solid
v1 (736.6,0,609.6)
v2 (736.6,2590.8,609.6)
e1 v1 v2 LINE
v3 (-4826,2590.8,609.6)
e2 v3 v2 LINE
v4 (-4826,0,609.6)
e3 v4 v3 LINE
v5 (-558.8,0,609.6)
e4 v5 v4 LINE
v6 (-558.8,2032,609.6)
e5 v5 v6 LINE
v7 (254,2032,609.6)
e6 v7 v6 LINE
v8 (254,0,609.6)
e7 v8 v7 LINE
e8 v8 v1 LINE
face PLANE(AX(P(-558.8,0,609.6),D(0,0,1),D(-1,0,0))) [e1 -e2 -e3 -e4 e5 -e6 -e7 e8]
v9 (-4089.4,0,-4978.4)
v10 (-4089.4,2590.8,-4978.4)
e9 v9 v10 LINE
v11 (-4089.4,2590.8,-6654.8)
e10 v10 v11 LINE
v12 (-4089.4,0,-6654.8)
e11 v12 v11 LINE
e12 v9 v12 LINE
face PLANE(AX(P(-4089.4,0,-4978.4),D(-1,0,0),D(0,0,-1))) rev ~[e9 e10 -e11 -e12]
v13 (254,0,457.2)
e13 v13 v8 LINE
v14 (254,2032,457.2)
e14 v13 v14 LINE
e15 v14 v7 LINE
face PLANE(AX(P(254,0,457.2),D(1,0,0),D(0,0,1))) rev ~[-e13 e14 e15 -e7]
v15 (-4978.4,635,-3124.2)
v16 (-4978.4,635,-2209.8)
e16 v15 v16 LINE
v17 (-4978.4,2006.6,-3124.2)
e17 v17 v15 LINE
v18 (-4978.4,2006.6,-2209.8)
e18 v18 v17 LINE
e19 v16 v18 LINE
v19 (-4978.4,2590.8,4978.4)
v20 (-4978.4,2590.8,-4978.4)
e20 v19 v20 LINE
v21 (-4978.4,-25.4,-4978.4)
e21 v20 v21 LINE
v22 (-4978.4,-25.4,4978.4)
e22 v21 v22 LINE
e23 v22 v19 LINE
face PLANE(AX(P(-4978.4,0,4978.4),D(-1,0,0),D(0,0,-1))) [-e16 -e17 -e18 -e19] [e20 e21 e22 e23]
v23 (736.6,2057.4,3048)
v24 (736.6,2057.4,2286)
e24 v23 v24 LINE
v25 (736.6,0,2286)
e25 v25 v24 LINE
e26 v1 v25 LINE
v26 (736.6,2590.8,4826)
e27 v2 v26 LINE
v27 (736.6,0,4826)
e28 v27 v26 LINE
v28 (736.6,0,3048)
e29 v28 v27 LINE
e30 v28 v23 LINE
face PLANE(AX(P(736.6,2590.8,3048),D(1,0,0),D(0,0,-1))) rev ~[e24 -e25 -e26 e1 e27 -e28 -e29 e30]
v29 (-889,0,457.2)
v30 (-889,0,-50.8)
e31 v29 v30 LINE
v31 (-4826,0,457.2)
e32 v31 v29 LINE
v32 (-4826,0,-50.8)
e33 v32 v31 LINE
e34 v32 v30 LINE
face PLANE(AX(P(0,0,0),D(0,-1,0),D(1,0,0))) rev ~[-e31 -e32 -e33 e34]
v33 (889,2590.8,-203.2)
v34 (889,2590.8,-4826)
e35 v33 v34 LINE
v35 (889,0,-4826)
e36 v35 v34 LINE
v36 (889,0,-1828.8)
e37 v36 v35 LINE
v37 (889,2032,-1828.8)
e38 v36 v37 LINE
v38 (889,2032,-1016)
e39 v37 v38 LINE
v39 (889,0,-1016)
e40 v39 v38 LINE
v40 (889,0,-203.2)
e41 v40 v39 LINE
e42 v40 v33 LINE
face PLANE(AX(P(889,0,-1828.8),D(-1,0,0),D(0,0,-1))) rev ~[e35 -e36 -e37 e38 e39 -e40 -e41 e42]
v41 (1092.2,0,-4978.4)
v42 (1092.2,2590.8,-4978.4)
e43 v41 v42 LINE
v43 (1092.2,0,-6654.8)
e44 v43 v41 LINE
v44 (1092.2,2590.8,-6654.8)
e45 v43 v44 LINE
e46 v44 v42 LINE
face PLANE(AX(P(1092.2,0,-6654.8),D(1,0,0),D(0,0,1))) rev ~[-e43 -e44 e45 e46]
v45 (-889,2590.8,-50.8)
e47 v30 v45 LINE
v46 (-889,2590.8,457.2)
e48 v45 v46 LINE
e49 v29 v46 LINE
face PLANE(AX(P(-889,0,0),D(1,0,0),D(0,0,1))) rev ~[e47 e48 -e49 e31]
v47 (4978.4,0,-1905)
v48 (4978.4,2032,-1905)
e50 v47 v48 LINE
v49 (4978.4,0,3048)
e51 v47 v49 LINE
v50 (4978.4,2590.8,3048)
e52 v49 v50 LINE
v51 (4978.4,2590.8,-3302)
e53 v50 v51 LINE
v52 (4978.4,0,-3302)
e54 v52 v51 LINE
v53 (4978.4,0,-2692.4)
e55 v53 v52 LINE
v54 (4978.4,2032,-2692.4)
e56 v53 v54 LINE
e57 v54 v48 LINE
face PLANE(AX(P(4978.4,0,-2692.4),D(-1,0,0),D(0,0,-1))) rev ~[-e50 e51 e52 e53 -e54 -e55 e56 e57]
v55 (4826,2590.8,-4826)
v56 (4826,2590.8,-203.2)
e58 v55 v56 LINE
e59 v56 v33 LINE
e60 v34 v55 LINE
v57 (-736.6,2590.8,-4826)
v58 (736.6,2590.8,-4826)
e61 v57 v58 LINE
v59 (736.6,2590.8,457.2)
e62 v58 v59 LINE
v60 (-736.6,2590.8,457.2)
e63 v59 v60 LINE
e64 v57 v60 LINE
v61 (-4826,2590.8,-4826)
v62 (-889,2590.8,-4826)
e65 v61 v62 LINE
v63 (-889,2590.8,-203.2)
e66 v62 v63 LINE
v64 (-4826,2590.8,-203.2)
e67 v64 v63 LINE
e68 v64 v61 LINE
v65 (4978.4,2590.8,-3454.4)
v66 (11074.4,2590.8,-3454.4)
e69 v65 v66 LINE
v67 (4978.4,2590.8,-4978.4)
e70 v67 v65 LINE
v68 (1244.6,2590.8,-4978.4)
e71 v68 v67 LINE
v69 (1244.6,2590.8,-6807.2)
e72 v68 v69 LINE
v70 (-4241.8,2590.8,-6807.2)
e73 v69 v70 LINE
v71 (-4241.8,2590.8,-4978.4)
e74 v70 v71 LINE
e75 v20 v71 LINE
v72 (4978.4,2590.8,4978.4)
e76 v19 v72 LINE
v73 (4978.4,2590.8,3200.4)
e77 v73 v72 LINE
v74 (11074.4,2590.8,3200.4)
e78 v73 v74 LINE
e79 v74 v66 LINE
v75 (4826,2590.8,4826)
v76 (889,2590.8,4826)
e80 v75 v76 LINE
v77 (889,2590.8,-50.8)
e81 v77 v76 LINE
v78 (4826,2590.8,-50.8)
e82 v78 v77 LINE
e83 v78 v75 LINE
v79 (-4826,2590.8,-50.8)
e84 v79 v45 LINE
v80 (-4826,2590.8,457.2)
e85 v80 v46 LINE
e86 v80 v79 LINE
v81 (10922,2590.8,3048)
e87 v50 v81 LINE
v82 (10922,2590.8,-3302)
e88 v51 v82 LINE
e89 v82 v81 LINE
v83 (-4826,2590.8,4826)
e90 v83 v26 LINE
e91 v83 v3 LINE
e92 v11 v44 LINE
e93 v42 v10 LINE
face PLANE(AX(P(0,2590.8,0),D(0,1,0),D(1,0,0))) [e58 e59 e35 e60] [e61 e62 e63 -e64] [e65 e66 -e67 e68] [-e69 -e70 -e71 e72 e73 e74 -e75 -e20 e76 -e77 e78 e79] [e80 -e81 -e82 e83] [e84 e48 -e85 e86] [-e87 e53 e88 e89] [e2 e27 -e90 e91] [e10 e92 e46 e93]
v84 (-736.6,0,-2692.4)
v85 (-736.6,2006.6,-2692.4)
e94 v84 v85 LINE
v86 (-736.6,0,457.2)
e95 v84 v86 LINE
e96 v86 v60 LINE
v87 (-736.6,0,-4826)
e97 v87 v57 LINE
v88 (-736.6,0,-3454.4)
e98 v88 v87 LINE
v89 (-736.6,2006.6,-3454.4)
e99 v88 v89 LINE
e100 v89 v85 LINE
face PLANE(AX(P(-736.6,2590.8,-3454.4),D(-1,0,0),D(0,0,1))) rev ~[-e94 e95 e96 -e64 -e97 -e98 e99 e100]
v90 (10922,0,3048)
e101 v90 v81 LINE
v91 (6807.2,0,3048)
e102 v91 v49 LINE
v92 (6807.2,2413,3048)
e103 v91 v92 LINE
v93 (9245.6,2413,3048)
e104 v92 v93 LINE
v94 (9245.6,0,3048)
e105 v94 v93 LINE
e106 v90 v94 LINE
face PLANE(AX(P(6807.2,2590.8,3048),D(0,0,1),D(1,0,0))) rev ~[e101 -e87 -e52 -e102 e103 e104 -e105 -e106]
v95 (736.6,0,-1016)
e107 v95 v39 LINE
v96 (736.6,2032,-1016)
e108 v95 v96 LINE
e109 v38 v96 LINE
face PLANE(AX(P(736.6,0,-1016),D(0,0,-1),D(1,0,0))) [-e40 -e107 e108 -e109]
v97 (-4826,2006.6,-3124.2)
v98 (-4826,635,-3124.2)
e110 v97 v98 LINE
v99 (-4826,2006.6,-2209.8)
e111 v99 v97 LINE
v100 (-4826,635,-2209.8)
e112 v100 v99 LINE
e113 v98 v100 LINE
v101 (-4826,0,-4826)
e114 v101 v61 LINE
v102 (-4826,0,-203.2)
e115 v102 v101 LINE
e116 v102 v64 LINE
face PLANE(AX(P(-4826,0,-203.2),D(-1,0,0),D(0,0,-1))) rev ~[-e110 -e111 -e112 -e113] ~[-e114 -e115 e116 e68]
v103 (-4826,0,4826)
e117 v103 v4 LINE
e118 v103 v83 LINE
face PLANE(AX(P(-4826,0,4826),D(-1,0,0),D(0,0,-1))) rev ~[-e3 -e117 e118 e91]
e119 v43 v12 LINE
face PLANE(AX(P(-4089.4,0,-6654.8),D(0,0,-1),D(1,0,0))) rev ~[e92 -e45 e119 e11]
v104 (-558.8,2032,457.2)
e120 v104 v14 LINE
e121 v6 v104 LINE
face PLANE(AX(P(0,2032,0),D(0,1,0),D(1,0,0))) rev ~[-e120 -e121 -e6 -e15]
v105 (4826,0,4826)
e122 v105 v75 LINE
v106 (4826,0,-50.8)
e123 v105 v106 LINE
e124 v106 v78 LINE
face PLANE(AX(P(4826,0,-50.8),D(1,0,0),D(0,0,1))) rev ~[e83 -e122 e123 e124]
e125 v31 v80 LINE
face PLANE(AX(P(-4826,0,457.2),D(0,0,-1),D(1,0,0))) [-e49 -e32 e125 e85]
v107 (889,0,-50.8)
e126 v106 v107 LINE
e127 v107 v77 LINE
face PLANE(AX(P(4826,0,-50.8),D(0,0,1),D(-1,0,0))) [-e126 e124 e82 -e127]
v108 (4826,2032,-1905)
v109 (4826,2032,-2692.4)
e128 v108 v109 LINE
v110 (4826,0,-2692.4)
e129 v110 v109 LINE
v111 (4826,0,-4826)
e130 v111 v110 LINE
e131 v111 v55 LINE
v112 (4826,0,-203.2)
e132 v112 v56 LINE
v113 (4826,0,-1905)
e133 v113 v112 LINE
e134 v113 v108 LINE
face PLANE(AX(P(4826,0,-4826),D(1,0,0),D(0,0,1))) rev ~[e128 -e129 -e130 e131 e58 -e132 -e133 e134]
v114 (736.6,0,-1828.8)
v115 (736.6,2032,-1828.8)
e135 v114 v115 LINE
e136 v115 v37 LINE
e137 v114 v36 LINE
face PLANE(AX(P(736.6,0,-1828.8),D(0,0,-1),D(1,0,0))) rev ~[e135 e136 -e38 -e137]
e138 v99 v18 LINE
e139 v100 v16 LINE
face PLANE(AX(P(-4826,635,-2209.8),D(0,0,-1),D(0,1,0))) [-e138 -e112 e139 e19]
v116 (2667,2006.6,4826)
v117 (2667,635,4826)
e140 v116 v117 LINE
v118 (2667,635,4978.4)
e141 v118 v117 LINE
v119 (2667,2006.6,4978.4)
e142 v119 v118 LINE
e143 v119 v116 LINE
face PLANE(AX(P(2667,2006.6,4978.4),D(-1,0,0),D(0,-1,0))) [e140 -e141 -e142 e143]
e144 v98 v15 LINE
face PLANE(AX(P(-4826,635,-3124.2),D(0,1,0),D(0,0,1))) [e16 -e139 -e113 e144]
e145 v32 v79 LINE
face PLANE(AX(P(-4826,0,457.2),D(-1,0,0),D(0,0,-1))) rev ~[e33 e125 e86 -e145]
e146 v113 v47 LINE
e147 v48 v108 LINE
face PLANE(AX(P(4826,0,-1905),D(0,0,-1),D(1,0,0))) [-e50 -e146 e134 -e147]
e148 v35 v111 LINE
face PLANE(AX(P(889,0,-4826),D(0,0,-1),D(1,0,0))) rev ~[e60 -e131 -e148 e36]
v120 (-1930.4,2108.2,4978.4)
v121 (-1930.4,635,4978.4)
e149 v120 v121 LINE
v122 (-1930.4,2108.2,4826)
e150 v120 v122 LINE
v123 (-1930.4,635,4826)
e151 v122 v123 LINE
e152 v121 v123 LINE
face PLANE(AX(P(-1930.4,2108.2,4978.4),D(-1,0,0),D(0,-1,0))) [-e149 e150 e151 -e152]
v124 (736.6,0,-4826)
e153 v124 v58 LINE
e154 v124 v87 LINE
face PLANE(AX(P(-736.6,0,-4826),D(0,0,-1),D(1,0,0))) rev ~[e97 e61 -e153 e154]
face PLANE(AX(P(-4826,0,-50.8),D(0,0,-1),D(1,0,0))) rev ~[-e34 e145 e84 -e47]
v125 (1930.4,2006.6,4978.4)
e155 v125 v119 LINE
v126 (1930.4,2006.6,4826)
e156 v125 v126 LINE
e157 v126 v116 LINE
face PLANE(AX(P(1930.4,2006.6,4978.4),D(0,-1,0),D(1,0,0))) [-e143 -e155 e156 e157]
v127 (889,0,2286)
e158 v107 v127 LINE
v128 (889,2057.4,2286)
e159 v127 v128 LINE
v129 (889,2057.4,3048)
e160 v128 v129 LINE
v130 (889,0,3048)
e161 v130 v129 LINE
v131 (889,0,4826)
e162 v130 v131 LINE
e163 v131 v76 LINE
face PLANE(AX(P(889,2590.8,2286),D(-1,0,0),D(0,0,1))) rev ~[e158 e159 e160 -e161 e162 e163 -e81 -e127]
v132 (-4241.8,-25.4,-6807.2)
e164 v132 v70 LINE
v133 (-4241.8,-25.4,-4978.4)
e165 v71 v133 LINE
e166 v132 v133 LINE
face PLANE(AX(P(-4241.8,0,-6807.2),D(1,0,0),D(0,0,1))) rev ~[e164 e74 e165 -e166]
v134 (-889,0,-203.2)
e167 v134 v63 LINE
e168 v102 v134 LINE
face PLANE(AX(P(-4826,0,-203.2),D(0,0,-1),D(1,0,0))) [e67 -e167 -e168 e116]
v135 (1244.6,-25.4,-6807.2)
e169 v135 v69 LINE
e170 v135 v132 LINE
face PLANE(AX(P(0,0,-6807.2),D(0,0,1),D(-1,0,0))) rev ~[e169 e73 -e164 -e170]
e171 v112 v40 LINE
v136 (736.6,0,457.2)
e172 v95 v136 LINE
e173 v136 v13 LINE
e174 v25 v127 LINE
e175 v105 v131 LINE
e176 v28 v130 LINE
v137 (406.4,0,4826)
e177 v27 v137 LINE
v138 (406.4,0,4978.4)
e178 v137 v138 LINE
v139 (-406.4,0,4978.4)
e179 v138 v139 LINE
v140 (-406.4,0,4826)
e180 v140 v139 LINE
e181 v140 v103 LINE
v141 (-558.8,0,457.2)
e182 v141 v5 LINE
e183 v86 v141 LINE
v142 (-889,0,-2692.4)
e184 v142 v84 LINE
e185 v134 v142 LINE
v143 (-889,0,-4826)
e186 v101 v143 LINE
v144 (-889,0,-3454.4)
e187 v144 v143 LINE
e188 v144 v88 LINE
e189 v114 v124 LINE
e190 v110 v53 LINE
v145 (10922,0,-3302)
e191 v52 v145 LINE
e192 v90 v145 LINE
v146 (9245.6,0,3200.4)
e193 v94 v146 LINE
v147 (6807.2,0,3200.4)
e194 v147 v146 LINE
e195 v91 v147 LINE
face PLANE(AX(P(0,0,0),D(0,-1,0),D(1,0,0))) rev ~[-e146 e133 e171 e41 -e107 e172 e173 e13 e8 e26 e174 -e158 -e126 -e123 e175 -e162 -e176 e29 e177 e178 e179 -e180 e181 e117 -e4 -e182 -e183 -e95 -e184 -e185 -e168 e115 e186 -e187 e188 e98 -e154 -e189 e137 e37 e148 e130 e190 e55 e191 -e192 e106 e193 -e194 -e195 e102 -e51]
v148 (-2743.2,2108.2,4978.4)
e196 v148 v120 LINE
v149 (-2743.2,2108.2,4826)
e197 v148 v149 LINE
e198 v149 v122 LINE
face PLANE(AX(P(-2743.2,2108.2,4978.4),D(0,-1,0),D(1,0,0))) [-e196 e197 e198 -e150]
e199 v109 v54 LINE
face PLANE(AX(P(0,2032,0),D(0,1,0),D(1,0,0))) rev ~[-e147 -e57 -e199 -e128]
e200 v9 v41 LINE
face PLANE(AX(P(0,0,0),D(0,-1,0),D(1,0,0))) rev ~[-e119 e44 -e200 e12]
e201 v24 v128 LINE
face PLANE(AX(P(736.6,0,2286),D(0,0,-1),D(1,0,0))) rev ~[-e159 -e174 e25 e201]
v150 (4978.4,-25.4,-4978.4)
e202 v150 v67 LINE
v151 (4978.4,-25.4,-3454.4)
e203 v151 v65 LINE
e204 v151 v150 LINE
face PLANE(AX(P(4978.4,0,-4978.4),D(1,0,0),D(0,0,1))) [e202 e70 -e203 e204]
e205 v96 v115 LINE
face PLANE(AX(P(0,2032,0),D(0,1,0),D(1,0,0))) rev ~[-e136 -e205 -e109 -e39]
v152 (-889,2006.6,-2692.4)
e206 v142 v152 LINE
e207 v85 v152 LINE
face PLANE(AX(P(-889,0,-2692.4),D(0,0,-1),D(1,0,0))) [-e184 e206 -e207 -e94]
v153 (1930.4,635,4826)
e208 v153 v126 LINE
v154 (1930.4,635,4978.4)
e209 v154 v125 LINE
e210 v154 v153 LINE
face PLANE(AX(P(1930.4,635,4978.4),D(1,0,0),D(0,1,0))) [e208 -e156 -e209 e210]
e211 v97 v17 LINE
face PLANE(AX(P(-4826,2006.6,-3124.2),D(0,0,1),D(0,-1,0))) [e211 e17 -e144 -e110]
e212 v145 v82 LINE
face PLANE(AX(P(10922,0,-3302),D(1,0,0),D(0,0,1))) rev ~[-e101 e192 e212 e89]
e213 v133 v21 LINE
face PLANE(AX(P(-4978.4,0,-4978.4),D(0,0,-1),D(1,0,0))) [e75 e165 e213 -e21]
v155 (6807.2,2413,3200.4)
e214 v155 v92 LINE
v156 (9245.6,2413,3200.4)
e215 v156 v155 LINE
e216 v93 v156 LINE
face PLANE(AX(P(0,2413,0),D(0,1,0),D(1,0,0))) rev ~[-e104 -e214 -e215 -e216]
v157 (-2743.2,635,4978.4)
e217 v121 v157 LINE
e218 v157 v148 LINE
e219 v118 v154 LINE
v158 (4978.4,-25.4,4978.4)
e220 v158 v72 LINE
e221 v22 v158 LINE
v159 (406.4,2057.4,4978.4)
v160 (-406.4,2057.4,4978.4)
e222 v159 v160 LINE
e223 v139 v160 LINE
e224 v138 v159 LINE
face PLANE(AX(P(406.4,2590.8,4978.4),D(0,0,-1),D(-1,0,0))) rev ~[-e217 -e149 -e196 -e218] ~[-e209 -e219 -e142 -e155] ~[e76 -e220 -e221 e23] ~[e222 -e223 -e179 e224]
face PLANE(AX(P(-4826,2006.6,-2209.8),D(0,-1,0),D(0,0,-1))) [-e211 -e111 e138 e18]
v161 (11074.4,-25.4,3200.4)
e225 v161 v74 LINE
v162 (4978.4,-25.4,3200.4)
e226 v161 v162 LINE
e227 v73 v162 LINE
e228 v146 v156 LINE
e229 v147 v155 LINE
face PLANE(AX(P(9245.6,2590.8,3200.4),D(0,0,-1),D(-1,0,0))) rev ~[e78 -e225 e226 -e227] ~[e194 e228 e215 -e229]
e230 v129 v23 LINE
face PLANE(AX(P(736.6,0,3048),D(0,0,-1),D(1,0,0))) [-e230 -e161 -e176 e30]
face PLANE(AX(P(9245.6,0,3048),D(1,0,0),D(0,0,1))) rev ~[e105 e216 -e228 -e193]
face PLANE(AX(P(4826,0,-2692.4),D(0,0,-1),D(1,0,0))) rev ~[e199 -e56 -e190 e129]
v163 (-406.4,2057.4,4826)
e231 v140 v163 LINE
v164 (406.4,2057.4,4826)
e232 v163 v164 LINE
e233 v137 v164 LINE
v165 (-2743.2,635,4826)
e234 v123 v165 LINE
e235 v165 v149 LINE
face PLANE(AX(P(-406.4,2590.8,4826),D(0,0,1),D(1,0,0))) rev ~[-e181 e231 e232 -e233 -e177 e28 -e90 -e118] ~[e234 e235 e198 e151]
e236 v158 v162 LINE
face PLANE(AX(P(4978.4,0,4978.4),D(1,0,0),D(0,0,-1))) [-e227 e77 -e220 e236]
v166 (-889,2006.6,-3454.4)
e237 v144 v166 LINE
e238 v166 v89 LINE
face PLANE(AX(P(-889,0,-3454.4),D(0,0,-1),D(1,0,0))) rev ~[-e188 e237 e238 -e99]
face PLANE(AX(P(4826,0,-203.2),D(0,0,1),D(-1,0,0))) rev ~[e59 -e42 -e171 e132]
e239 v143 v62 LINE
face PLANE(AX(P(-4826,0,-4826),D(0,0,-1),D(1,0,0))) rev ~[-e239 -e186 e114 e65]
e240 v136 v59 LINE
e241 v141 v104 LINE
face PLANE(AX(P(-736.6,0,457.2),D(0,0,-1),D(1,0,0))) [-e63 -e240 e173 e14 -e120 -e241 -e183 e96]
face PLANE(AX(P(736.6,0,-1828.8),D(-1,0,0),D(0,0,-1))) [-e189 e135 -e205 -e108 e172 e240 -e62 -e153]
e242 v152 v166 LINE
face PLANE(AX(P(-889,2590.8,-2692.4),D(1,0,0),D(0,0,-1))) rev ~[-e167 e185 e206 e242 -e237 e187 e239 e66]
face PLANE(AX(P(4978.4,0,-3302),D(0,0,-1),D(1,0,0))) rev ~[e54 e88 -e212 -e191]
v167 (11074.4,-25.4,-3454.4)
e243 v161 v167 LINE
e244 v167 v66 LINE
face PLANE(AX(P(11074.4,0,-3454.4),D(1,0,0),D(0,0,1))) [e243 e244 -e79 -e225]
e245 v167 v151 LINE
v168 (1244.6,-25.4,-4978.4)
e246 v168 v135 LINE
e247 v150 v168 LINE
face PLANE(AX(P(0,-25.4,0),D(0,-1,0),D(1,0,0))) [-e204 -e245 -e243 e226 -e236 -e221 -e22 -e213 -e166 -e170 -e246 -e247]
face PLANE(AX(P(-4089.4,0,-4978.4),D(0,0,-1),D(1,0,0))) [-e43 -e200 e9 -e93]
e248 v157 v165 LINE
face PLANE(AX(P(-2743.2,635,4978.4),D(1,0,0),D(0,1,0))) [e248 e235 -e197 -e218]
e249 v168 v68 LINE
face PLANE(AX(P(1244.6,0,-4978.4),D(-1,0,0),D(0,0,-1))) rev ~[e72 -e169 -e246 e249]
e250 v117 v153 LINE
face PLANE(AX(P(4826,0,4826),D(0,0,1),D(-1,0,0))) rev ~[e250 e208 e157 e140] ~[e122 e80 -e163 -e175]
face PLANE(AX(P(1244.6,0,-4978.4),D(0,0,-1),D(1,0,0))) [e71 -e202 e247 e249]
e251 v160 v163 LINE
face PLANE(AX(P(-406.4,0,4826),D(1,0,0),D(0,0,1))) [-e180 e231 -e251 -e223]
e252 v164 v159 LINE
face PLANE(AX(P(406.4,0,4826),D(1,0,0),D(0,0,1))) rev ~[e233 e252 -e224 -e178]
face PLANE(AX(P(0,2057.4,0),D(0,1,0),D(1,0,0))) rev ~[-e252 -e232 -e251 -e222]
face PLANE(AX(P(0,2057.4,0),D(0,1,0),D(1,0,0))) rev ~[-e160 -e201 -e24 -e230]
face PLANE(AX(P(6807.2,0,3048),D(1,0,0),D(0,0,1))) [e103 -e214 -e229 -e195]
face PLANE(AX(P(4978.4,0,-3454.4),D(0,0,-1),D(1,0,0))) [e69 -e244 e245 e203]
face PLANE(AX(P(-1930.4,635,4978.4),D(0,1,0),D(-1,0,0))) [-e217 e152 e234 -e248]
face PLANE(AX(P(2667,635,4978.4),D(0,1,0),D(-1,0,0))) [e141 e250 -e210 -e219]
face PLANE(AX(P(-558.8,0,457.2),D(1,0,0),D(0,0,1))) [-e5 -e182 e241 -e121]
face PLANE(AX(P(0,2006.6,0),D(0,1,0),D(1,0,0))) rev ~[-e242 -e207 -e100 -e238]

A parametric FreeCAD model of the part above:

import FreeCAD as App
import Part
import Sketcher

V = App.Vector
Q = App.Units.Quantity

doc = App.newDocument("Part")
body = doc.addObject("PartDesign::Body", "Body")
body.AllowCompound = True

# Sketch on XZ plane
sketch1 = body.newObject("Sketcher::SketchObject", "Sketch")
sketch1.AttachmentSupport = (doc.getObject("XZ_Plane"), [""])
sketch1.MapMode = "FlatFace"
sketch1.addGeometry([
    Part.LineSegment(V(-4978, 4978, 0), V(-406, 4978, 0)),  # 0
    Part.LineSegment(V(-406, 4978, 0), V(-406, 4826, 0)),  # 1
    Part.LineSegment(V(-406, 4826, 0), V(-4826, 4826, 0)),  # 2
    Part.LineSegment(V(-4826, 4826, 0), V(-4826, 610, 0)),  # 3
    Part.LineSegment(V(-4826, 610, 0), V(-559, 610, 0)),  # 4
    Part.LineSegment(V(-559, 610, 0), V(-559, 457, 0)),  # 5
    Part.LineSegment(V(-559, 457, 0), V(-737, 457, 0)),  # 6
    Part.LineSegment(V(-737, 457, 0), V(-737, -2692, 0)),  # 7
    Part.LineSegment(V(-737, -2692, 0), V(-889, -2692, 0)),  # 8
    Part.LineSegment(V(-889, -2692, 0), V(-889, -203, 0)),  # 9
    Part.LineSegment(V(-889, -203, 0), V(-4826, -203, 0)),  # 10
    Part.LineSegment(V(-4826, -203, 0), V(-4826, -4826, 0)),  # 11
    Part.LineSegment(V(-4826, -4826, 0), V(-889, -4826, 0)),  # 12
    Part.LineSegment(V(-889, -4826, 0), V(-889, -3454, 0)),  # 13
    Part.LineSegment(V(-889, -3454, 0), V(-737, -3454, 0)),  # 14
    Part.LineSegment(V(-737, -3454, 0), V(-737, -4826, 0)),  # 15
    Part.LineSegment(V(-737, -4826, 0), V(737, -4826, 0)),  # 16
    Part.LineSegment(V(737, -4826, 0), V(737, -1829, 0)),  # 17
    Part.LineSegment(V(737, -1829, 0), V(889, -1829, 0)),  # 18
    Part.LineSegment(V(889, -1829, 0), V(889, -4826, 0)),  # 19
    Part.LineSegment(V(889, -4826, 0), V(4826, -4826, 0)),  # 20
    Part.LineSegment(V(4826, -4826, 0), V(4826, -2692, 0)),  # 21
    Part.LineSegment(V(4826, -2692, 0), V(4978, -2692, 0)),  # 22
    Part.LineSegment(V(4978, -2692, 0), V(4978, -3302, 0)),  # 23
    Part.LineSegment(V(4978, -3302, 0), V(10922, -3302, 0)),  # 24
    Part.LineSegment(V(10922, -3302, 0), V(10922, 3048, 0)),  # 25
    Part.LineSegment(V(10922, 3048, 0), V(9246, 3048, 0)),  # 26
    Part.LineSegment(V(9246, 3048, 0), V(9246, 3200, 0)),  # 27
    Part.LineSegment(V(9246, 3200, 0), V(11074, 3200, 0)),  # 28
    Part.LineSegment(V(11074, 3200, 0), V(11074, -3454, 0)),  # 29
    Part.LineSegment(V(11074, -3454, 0), V(4978, -3454, 0)),  # 30
    Part.LineSegment(V(4978, -3454, 0), V(4978, -4978, 0)),  # 31
    Part.LineSegment(V(4978, -4978, 0), V(1245, -4978, 0)),  # 32
    Part.LineSegment(V(1245, -4978, 0), V(1245, -6807, 0)),  # 33
    Part.LineSegment(V(1245, -6807, 0), V(-4242, -6807, 0)),  # 34
    Part.LineSegment(V(-4242, -6807, 0), V(-4242, -4978, 0)),  # 35
    Part.LineSegment(V(-4242, -4978, 0), V(-4978, -4978, 0)),  # 36
    Part.LineSegment(V(-4978, -4978, 0), V(-4978, 4978, 0)),  # 37
    Part.LineSegment(V(-4826, 457, 0), V(-4826, -51, 0)),  # 38
    Part.LineSegment(V(-4826, -51, 0), V(-889, -51, 0)),  # 39
    Part.LineSegment(V(-889, -51, 0), V(-889, 457, 0)),  # 40
    Part.LineSegment(V(-889, 457, 0), V(-4826, 457, 0)),  # 41
    Part.LineSegment(V(-4089, -6655, 0), V(1092, -6655, 0)),  # 42
    Part.LineSegment(V(1092, -6655, 0), V(1092, -4978, 0)),  # 43
    Part.LineSegment(V(1092, -4978, 0), V(-4089, -4978, 0)),  # 44
    Part.LineSegment(V(-4089, -4978, 0), V(-4089, -6655, 0)),  # 45
    Part.LineSegment(V(737, 457, 0), V(254, 457, 0)),  # 46
    Part.LineSegment(V(254, 457, 0), V(254, 610, 0)),  # 47
    Part.LineSegment(V(254, 610, 0), V(737, 610, 0)),  # 48
    Part.LineSegment(V(737, 610, 0), V(737, 2286, 0)),  # 49
    Part.LineSegment(V(737, 2286, 0), V(889, 2286, 0)),  # 50
    Part.LineSegment(V(889, 2286, 0), V(889, -51, 0)),  # 51
    Part.LineSegment(V(889, -51, 0), V(4826, -51, 0)),  # 52
    Part.LineSegment(V(4826, -51, 0), V(4826, 4826, 0)),  # 53
    Part.LineSegment(V(4826, 4826, 0), V(889, 4826, 0)),  # 54
    Part.LineSegment(V(889, 4826, 0), V(889, 3048, 0)),  # 55
    Part.LineSegment(V(889, 3048, 0), V(737, 3048, 0)),  # 56
    Part.LineSegment(V(737, 3048, 0), V(737, 4826, 0)),  # 57
    Part.LineSegment(V(737, 4826, 0), V(406, 4826, 0)),  # 58
    Part.LineSegment(V(406, 4826, 0), V(406, 4978, 0)),  # 59
    Part.LineSegment(V(406, 4978, 0), V(4978, 4978, 0)),  # 60
    Part.LineSegment(V(4978, 4978, 0), V(4978, 3200, 0)),  # 61
    Part.LineSegment(V(4978, 3200, 0), V(6807, 3200, 0)),  # 62
    Part.LineSegment(V(6807, 3200, 0), V(6807, 3048, 0)),  # 63
    Part.LineSegment(V(6807, 3048, 0), V(4978, 3048, 0)),  # 64
    Part.LineSegment(V(4978, 3048, 0), V(4978, -1905, 0)),  # 65
    Part.LineSegment(V(4978, -1905, 0), V(4826, -1905, 0)),  # 66
    Part.LineSegment(V(4826, -1905, 0), V(4826, -203, 0)),  # 67
    Part.LineSegment(V(4826, -203, 0), V(889, -203, 0)),  # 68
    Part.LineSegment(V(889, -203, 0), V(889, -1016, 0)),  # 69
    Part.LineSegment(V(889, -1016, 0), V(737, -1016, 0)),  # 70
    Part.LineSegment(V(737, -1016, 0), V(737, 457, 0)),  # 71
], False)
sketch1.addConstraint([
    Sketcher.Constraint("Coincident", 0, 2, 1, 1),
    Sketcher.Constraint("Coincident", 1, 2, 2, 1),
    Sketcher.Constraint("Coincident", 2, 2, 3, 1),
    Sketcher.Constraint("Coincident", 3, 2, 4, 1),
    Sketcher.Constraint("Coincident", 4, 2, 5, 1),
    Sketcher.Constraint("Coincident", 5, 2, 6, 1),
    Sketcher.Constraint("Coincident", 6, 2, 7, 1),
    Sketcher.Constraint("Coincident", 7, 2, 8, 1),
    Sketcher.Constraint("Coincident", 8, 2, 9, 1),
    Sketcher.Constraint("Coincident", 9, 2, 10, 1),
    Sketcher.Constraint("Coincident", 10, 2, 11, 1),
    Sketcher.Constraint("Coincident", 11, 2, 12, 1),
    Sketcher.Constraint("Coincident", 12, 2, 13, 1),
    Sketcher.Constraint("Coincident", 13, 2, 14, 1),
    Sketcher.Constraint("Coincident", 14, 2, 15, 1),
    Sketcher.Constraint("Coincident", 15, 2, 16, 1),
    Sketcher.Constraint("Coincident", 16, 2, 17, 1),
    Sketcher.Constraint("Coincident", 17, 2, 18, 1),
    Sketcher.Constraint("Coincident", 18, 2, 19, 1),
    Sketcher.Constraint("Coincident", 19, 2, 20, 1),
    Sketcher.Constraint("Coincident", 20, 2, 21, 1),
    Sketcher.Constraint("Coincident", 21, 2, 22, 1),
    Sketcher.Constraint("Coincident", 22, 2, 23, 1),
    Sketcher.Constraint("Coincident", 23, 2, 24, 1),
    Sketcher.Constraint("Coincident", 24, 2, 25, 1),
    Sketcher.Constraint("Coincident", 25, 2, 26, 1),
    Sketcher.Constraint("Coincident", 26, 2, 27, 1),
    Sketcher.Constraint("Coincident", 27, 2, 28, 1),
    Sketcher.Constraint("Coincident", 28, 2, 29, 1),
    Sketcher.Constraint("Coincident", 29, 2, 30, 1),
    Sketcher.Constraint("Coincident", 30, 2, 31, 1),
    Sketcher.Constraint("Coincident", 31, 2, 32, 1),
    Sketcher.Constraint("Coincident", 32, 2, 33, 1),
    Sketcher.Constraint("Coincident", 33, 2, 34, 1),
    Sketcher.Constraint("Coincident", 34, 2, 35, 1),
    Sketcher.Constraint("Coincident", 35, 2, 36, 1),
    Sketcher.Constraint("Coincident", 36, 2, 37, 1),
    Sketcher.Constraint("Coincident", 37, 2, 0, 1),
    Sketcher.Constraint("Coincident", 38, 2, 39, 1),
    Sketcher.Constraint("Coincident", 39, 2, 40, 1),
    Sketcher.Constraint("Coincident", 40, 2, 41, 1),
    Sketcher.Constraint("Coincident", 41, 2, 38, 1),
    Sketcher.Constraint("Coincident", 42, 2, 43, 1),
    Sketcher.Constraint("Coincident", 43, 2, 44, 1),
    Sketcher.Constraint("Coincident", 44, 2, 45, 1),
    Sketcher.Constraint("Coincident", 45, 2, 42, 1),
    Sketcher.Constraint("Coincident", 46, 2, 47, 1),
    Sketcher.Constraint("Coincident", 47, 2, 48, 1),
    Sketcher.Constraint("Coincident", 48, 2, 49, 1),
    Sketcher.Constraint("Coincident", 49, 2, 50, 1),
    Sketcher.Constraint("Coincident", 50, 2, 51, 1),
    Sketcher.Constraint("Coincident", 51, 2, 52, 1),
    Sketcher.Constraint("Coincident", 52, 2, 53, 1),
    Sketcher.Constraint("Coincident", 53, 2, 54, 1),
    Sketcher.Constraint("Coincident", 54, 2, 55, 1),
    Sketcher.Constraint("Coincident", 55, 2, 56, 1),
    Sketcher.Constraint("Coincident", 56, 2, 57, 1),
    Sketcher.Constraint("Coincident", 57, 2, 58, 1),
    Sketcher.Constraint("Coincident", 58, 2, 59, 1),
    Sketcher.Constraint("Coincident", 59, 2, 60, 1),
    Sketcher.Constraint("Coincident", 60, 2, 61, 1),
    Sketcher.Constraint("Coincident", 61, 2, 62, 1),
    Sketcher.Constraint("Coincident", 62, 2, 63, 1),
    Sketcher.Constraint("Coincident", 63, 2, 64, 1),
    Sketcher.Constraint("Coincident", 64, 2, 65, 1),
    Sketcher.Constraint("Coincident", 65, 2, 66, 1),
    Sketcher.Constraint("Coincident", 66, 2, 67, 1),
    Sketcher.Constraint("Coincident", 67, 2, 68, 1),
    Sketcher.Constraint("Coincident", 68, 2, 69, 1),
    Sketcher.Constraint("Coincident", 69, 2, 70, 1),
    Sketcher.Constraint("Coincident", 70, 2, 71, 1),
    Sketcher.Constraint("Coincident", 71, 2, 46, 1),
    Sketcher.Constraint("Horizontal", 0),
    Sketcher.Constraint("Vertical", 1),
    Sketcher.Constraint("Horizontal", 2),
    Sketcher.Constraint("Vertical", 3),
    Sketcher.Constraint("Horizontal", 4),
    Sketcher.Constraint("Vertical", 5),
    Sketcher.Constraint("Horizontal", 6),
    Sketcher.Constraint("Vertical", 7),
    Sketcher.Constraint("Horizontal", 8),
    Sketcher.Constraint("Vertical", 9),
    Sketcher.Constraint("Horizontal", 10),
    Sketcher.Constraint("Vertical", 11),
    Sketcher.Constraint("Horizontal", 12),
    Sketcher.Constraint("Vertical", 13),
    Sketcher.Constraint("Horizontal", 14),
    Sketcher.Constraint("Vertical", 15),
    Sketcher.Constraint("Horizontal", 16),
    Sketcher.Constraint("Vertical", 17),
    Sketcher.Constraint("Horizontal", 18),
    Sketcher.Constraint("Vertical", 19),
    Sketcher.Constraint("Horizontal", 20),
    Sketcher.Constraint("Vertical", 21),
    Sketcher.Constraint("Horizontal", 22),
    Sketcher.Constraint("Vertical", 23),
    Sketcher.Constraint("Horizontal", 24),
    Sketcher.Constraint("Vertical", 25),
    Sketcher.Constraint("Horizontal", 26),
    Sketcher.Constraint("Vertical", 27),
    Sketcher.Constraint("Horizontal", 28),
    Sketcher.Constraint("Vertical", 29),
    Sketcher.Constraint("Horizontal", 30),
    Sketcher.Constraint("Vertical", 31),
    Sketcher.Constraint("Horizontal", 32),
    Sketcher.Constraint("Vertical", 33),
    Sketcher.Constraint("Horizontal", 34),
    Sketcher.Constraint("Vertical", 35),
    Sketcher.Constraint("Horizontal", 36),
    Sketcher.Constraint("Vertical", 37),
    Sketcher.Constraint("Vertical", 38),
    Sketcher.Constraint("Horizontal", 39),
    Sketcher.Constraint("Vertical", 40),
    Sketcher.Constraint("Horizontal", 41),
    Sketcher.Constraint("Horizontal", 42),
    Sketcher.Constraint("Vertical", 43),
    Sketcher.Constraint("Horizontal", 44),
    Sketcher.Constraint("Vertical", 45),
    Sketcher.Constraint("Horizontal", 46),
    Sketcher.Constraint("Vertical", 47),
    Sketcher.Constraint("Horizontal", 48),
    Sketcher.Constraint("Vertical", 49),
    Sketcher.Constraint("Horizontal", 50),
    Sketcher.Constraint("Vertical", 51),
    Sketcher.Constraint("Horizontal", 52),
    Sketcher.Constraint("Vertical", 53),
    Sketcher.Constraint("Horizontal", 54),
    Sketcher.Constraint("Vertical", 55),
    Sketcher.Constraint("Horizontal", 56),
    Sketcher.Constraint("Vertical", 57),
    Sketcher.Constraint("Horizontal", 58),
    Sketcher.Constraint("Vertical", 59),
    Sketcher.Constraint("Horizontal", 60),
    Sketcher.Constraint("Vertical", 61),
    Sketcher.Constraint("Horizontal", 62),
    Sketcher.Constraint("Vertical", 63),
    Sketcher.Constraint("Horizontal", 64),
    Sketcher.Constraint("Vertical", 65),
    Sketcher.Constraint("Horizontal", 66),
    Sketcher.Constraint("Vertical", 67),
    Sketcher.Constraint("Horizontal", 68),
    Sketcher.Constraint("Vertical", 69),
    Sketcher.Constraint("Horizontal", 70),
    Sketcher.Constraint("Vertical", 71),
    Sketcher.Constraint("Symmetric", 2, 2, 20, 2, -1, 1),
    Sketcher.Constraint("Symmetric", 31, 2, 37, 2, -1, 1),
    Sketcher.Constraint("Symmetric", 11, 2, 53, 2, -1, 1),
    Sketcher.Constraint("Symmetric", 15, 2, 57, 2, -1, 1),
    Sketcher.Constraint("Symmetric", 36, 2, 60, 2, -1, 1),
    Sketcher.Constraint("Symmetric", 12, 2, 19, 2, -2),
    Sketcher.Constraint("Symmetric", 39, 2, 51, 2, -2),
    Sketcher.Constraint("Symmetric", 1, 2, 58, 2, -2),
    Sketcher.Constraint("Symmetric", 10, 2, 67, 2, -2),
    Sketcher.Constraint("Symmetric", 6, 2, 71, 2, -2),
    Sketcher.Constraint("Horizontal", 8, 2, 21, 2),
    Sketcher.Constraint("Horizontal", 14, 2, 29, 2),
    Sketcher.Constraint("Horizontal", 32, 2, 35, 2),
    Sketcher.Constraint("Horizontal", 6, 2, 40, 2),
    Sketcher.Constraint("Horizontal", 36, 2, 43, 2),
    Sketcher.Constraint("Horizontal", 4, 2, 47, 2),
    Sketcher.Constraint("Horizontal", 26, 2, 55, 2),
    Sketcher.Constraint("Horizontal", 28, 2, 61, 2),
    Sketcher.Constraint("Horizontal", 56, 2, 63, 2),
    Sketcher.Constraint("Vertical", 3, 2, 10, 2),
    Sketcher.Constraint("Vertical", 9, 2, 12, 2),
    Sketcher.Constraint("Vertical", 7, 2, 14, 2),
    Sketcher.Constraint("Vertical", 23, 2, 30, 2),
    Sketcher.Constraint("Vertical", 11, 2, 38, 2),
    Sketcher.Constraint("Vertical", 13, 2, 39, 2),
    Sketcher.Constraint("Vertical", 17, 2, 48, 2),
    Sketcher.Constraint("Vertical", 51, 2, 54, 2),
    Sketcher.Constraint("Vertical", 49, 2, 56, 2),
    Sketcher.Constraint("Vertical", 61, 2, 64, 2),
    Sketcher.Constraint("Vertical", 55, 2, 68, 2),
    Sketcher.Constraint("Equal", 18, 22),
    Sketcher.Constraint("Equal", 28, 62),
    Sketcher.Constraint("Equal", 70, 1),
    Sketcher.Constraint("Equal", 1, 5),
    Sketcher.Constraint("Equal", 5, 27),
    Sketcher.Constraint("Equal", 64, 33),
    Sketcher.Constraint("Equal", 26, 43),
    Sketcher.Constraint("Equal", 45, 49),
    Sketcher.Constraint("Equal", 16, 71),
    Sketcher.Constraint("DistanceX", 0, 1, 0, 2, Q("180 in")),
    Sketcher.Constraint("DistanceX", 4, 1, 4, 2, Q("168 in")),
    Sketcher.Constraint("DistanceX", 8, 2, 8, 1, Q("6 in")),
    Sketcher.Constraint("DistanceX", 10, 2, 10, 1, Q("155 in")),
    Sketcher.Constraint("DistanceX", 28, 1, 28, 2, Q("72 in")),
    Sketcher.Constraint("DistanceX", 30, 2, 30, 1, Q("240 in")),
    Sketcher.Constraint("DistanceX", 32, 2, 32, 1, Q("147 in")),
    Sketcher.Constraint("DistanceX", 34, 2, 34, 1, Q("216 in")),
    Sketcher.Constraint("DistanceX", 36, 2, 36, 1, Q("29 in")),
    Sketcher.Constraint("DistanceY", 9, 1, 9, 2, Q("98 in")),
    Sketcher.Constraint("DistanceY", 11, 2, 11, 1, Q("182 in")),
    Sketcher.Constraint("DistanceY", 29, 2, 29, 1, Q("262 in")),
    Sketcher.Constraint("DistanceY", 31, 2, 31, 1, Q("60 in")),
    Sketcher.Constraint("DistanceY", 37, 1, 37, 2, Q("392 in")),
    Sketcher.Constraint("DistanceY", 67, 1, 67, 2, Q("67 in")),
    Sketcher.Constraint("DistanceY", 69, 2, 69, 1, Q("32 in")),
    Sketcher.Constraint("DistanceY", 17, 2, -1, 1, Q("72 in")),
    Sketcher.Constraint("DistanceY", 42, 2, -1, 1, Q("262 in")),
    Sketcher.Constraint("DistanceX", 42, 1, 42, 2, Q("204 in")),
    Sketcher.Constraint("DistanceX", 46, 2, 46, 1, Q("19 in")),
    Sketcher.Constraint("DistanceY", 23, 2, 23, 1, Q("24 in")),
    Sketcher.Constraint("DistanceY", 38, 2, 38, 1, Q("20 in")),
    Sketcher.Constraint("DistanceX", -1, 1, 42, 2, Q("43 in")),
])
pad1 = body.newObject("PartDesign::Pad", "Pad")
pad1.Profile = sketch1
pad1.Length = Q("102 in")
pad1.Reversed = True

# Sketch on XZ plane
sketch2 = body.newObject("Sketcher::SketchObject", "Sketch001")
sketch2.AttachmentSupport = (doc.getObject("XZ_Plane"), [""])
sketch2.MapMode = "FlatFace"
sketch2.addGeometry([
    Part.LineSegment(V(-4978, 4978, 0), V(-4978, -4978, 0)),  # 0
    Part.LineSegment(V(-4978, -4978, 0), V(-4242, -4978, 0)),  # 1
    Part.LineSegment(V(-4242, -4978, 0), V(-4242, -6807, 0)),  # 2
    Part.LineSegment(V(-4242, -6807, 0), V(1245, -6807, 0)),  # 3
    Part.LineSegment(V(1245, -6807, 0), V(1245, -4978, 0)),  # 4
    Part.LineSegment(V(1245, -4978, 0), V(4978, -4978, 0)),  # 5
    Part.LineSegment(V(4978, -4978, 0), V(4978, -3454, 0)),  # 6
    Part.LineSegment(V(4978, -3454, 0), V(11074, -3454, 0)),  # 7
    Part.LineSegment(V(11074, -3454, 0), V(11074, 3200, 0)),  # 8
    Part.LineSegment(V(11074, 3200, 0), V(4978, 3200, 0)),  # 9
    Part.LineSegment(V(4978, 3200, 0), V(4978, 4978, 0)),  # 10
    Part.LineSegment(V(4978, 4978, 0), V(-4978, 4978, 0)),  # 11
], False)
sketch2.addConstraint([
    Sketcher.Constraint("Coincident", 0, 2, 1, 1),
    Sketcher.Constraint("Coincident", 1, 2, 2, 1),
    Sketcher.Constraint("Coincident", 2, 2, 3, 1),
    Sketcher.Constraint("Coincident", 3, 2, 4, 1),
    Sketcher.Constraint("Coincident", 4, 2, 5, 1),
    Sketcher.Constraint("Coincident", 5, 2, 6, 1),
    Sketcher.Constraint("Coincident", 6, 2, 7, 1),
    Sketcher.Constraint("Coincident", 7, 2, 8, 1),
    Sketcher.Constraint("Coincident", 8, 2, 9, 1),
    Sketcher.Constraint("Coincident", 9, 2, 10, 1),
    Sketcher.Constraint("Coincident", 10, 2, 11, 1),
    Sketcher.Constraint("Coincident", 11, 2, 0, 1),
    Sketcher.Constraint("Vertical", 0),
    Sketcher.Constraint("Horizontal", 1),
    Sketcher.Constraint("Vertical", 2),
    Sketcher.Constraint("Horizontal", 3),
    Sketcher.Constraint("Vertical", 4),
    Sketcher.Constraint("Horizontal", 5),
    Sketcher.Constraint("Vertical", 6),
    Sketcher.Constraint("Horizontal", 7),
    Sketcher.Constraint("Vertical", 8),
    Sketcher.Constraint("Horizontal", 9),
    Sketcher.Constraint("Vertical", 10),
    Sketcher.Constraint("Horizontal", 11),
    Sketcher.Constraint("Symmetric", 0, 2, 10, 2, -1, 1),
    Sketcher.Constraint("Symmetric", 5, 2, 11, 2, -1, 1),
    Sketcher.Constraint("Equal", 11, 0),
    Sketcher.Constraint("DistanceX", 1, 1, 1, 2, Q("29 in")),
    Sketcher.Constraint("DistanceX", 3, 1, 3, 2, Q("216 in")),
    Sketcher.Constraint("DistanceX", 5, 1, 5, 2, Q("147 in")),
    Sketcher.Constraint("DistanceX", 7, 1, 7, 2, Q("240 in")),
    Sketcher.Constraint("DistanceY", 2, 2, 2, 1, Q("72 in")),
    Sketcher.Constraint("DistanceY", 6, 1, 6, 2, Q("60 in")),
    Sketcher.Constraint("DistanceY", 8, 1, 8, 2, Q("262 in")),
])
pad2 = body.newObject("PartDesign::Pad", "Pad001")
pad2.Profile = sketch2
pad2.Length = Q("1 in")

# Sketch on XZ plane
sketch3 = body.newObject("Sketcher::SketchObject", "Sketch002")
sketch3.AttachmentSupport = (doc.getObject("XZ_Plane"), [""])
sketch3.MapMode = "FlatFace"
sketch3.AttachmentOffset = App.Placement(V(0, 0, -102 * 25.4), App.Rotation())
sketch3.addGeometry([
    Part.LineSegment(V(4826, -1905, 0), V(4978, -1905, 0)),  # 0
    Part.LineSegment(V(4978, -1905, 0), V(4978, -2692, 0)),  # 1
    Part.LineSegment(V(4978, -2692, 0), V(4826, -2692, 0)),  # 2
    Part.LineSegment(V(4826, -2692, 0), V(4826, -1905, 0)),  # 3
    Part.LineSegment(V(737, -1016, 0), V(889, -1016, 0)),  # 4
    Part.LineSegment(V(889, -1016, 0), V(889, -1829, 0)),  # 5
    Part.LineSegment(V(889, -1829, 0), V(737, -1829, 0)),  # 6
    Part.LineSegment(V(737, -1829, 0), V(737, -1016, 0)),  # 7
    Part.LineSegment(V(254, 610, 0), V(254, 457, 0)),  # 8
    Part.LineSegment(V(254, 457, 0), V(-559, 457, 0)),  # 9
    Part.LineSegment(V(-559, 457, 0), V(-559, 610, 0)),  # 10
    Part.LineSegment(V(-559, 610, 0), V(254, 610, 0)),  # 11
], False)
sketch3.addConstraint([
    Sketcher.Constraint("Coincident", 0, 2, 1, 1),
    Sketcher.Constraint("Coincident", 1, 2, 2, 1),
    Sketcher.Constraint("Coincident", 2, 2, 3, 1),
    Sketcher.Constraint("Coincident", 3, 2, 0, 1),
    Sketcher.Constraint("Coincident", 4, 2, 5, 1),
    Sketcher.Constraint("Coincident", 5, 2, 6, 1),
    Sketcher.Constraint("Coincident", 6, 2, 7, 1),
    Sketcher.Constraint("Coincident", 7, 2, 4, 1),
    Sketcher.Constraint("Coincident", 8, 2, 9, 1),
    Sketcher.Constraint("Coincident", 9, 2, 10, 1),
    Sketcher.Constraint("Coincident", 10, 2, 11, 1),
    Sketcher.Constraint("Coincident", 11, 2, 8, 1),
    Sketcher.Constraint("Horizontal", 0),
    Sketcher.Constraint("Vertical", 1),
    Sketcher.Constraint("Horizontal", 2),
    Sketcher.Constraint("Vertical", 3),
    Sketcher.Constraint("Horizontal", 4),
    Sketcher.Constraint("Vertical", 5),
    Sketcher.Constraint("Horizontal", 6),
    Sketcher.Constraint("Vertical", 7),
    Sketcher.Constraint("Vertical", 8),
    Sketcher.Constraint("Horizontal", 9),
    Sketcher.Constraint("Vertical", 10),
    Sketcher.Constraint("Horizontal", 11),
    Sketcher.Constraint("Equal", 2, 4),
    Sketcher.Constraint("Equal", 11, 5),
    Sketcher.Constraint("Equal", 6, 8),
    Sketcher.Constraint("DistanceX", 0, 1, 0, 2, Q("6 in")),
    Sketcher.Constraint("DistanceX", 9, 2, 9, 1, Q("32 in")),
    Sketcher.Constraint("DistanceY", 1, 2, 1, 1, Q("31 in")),
    Sketcher.Constraint("DistanceX", -1, 1, 0, 2, Q("196 in")),
    Sketcher.Constraint("DistanceY", 0, 2, -1, 1, Q("75 in")),
    Sketcher.Constraint("DistanceX", -1, 1, 4, 2, Q("35 in")),
    Sketcher.Constraint("DistanceY", 4, 2, -1, 1, Q("40 in")),
    Sketcher.Constraint("DistanceX", -1, 1, 8, 2, Q("10 in")),
    Sketcher.Constraint("DistanceY", -1, 1, 8, 2, Q("18 in")),
])
pad3 = body.newObject("PartDesign::Pad", "Pad002")
pad3.Profile = sketch3
pad3.Length = Q("22 in")

# Sketch on XZ plane
sketch4 = body.newObject("Sketcher::SketchObject", "Sketch003")
sketch4.AttachmentSupport = (doc.getObject("XZ_Plane"), [""])
sketch4.MapMode = "FlatFace"
sketch4.AttachmentOffset = App.Placement(V(0, 0, -102 * 25.4), App.Rotation())
sketch4.addGeometry([
    Part.LineSegment(V(889, 2286, 0), V(737, 2286, 0)),
    Part.LineSegment(V(737, 2286, 0), V(737, 3048, 0)),
    Part.LineSegment(V(737, 3048, 0), V(889, 3048, 0)),
    Part.LineSegment(V(889, 3048, 0), V(889, 2286, 0)),
], False)
sketch4.addConstraint([
    Sketcher.Constraint("Coincident", 0, 2, 1, 1),
    Sketcher.Constraint("Coincident", 1, 2, 2, 1),
    Sketcher.Constraint("Coincident", 2, 2, 3, 1),
    Sketcher.Constraint("Coincident", 3, 2, 0, 1),
    Sketcher.Constraint("Horizontal", 0),
    Sketcher.Constraint("Vertical", 1),
    Sketcher.Constraint("Horizontal", 2),
    Sketcher.Constraint("Vertical", 3),
    Sketcher.Constraint("DistanceX", 0, 2, 0, 1, Q("6 in")),
    Sketcher.Constraint("DistanceY", 1, 1, 1, 2, Q("30 in")),
    Sketcher.Constraint("DistanceX", -1, 1, 0, 2, Q("29 in")),
    Sketcher.Constraint("DistanceY", -1, 1, 0, 2, Q("90 in")),
])
pad4 = body.newObject("PartDesign::Pad", "Pad003")
pad4.Profile = sketch4
pad4.Length = Q("21 in")

# Sketch on XZ plane
sketch5 = body.newObject("Sketcher::SketchObject", "Sketch004")
sketch5.AttachmentSupport = (doc.getObject("XZ_Plane"), [""])
sketch5.MapMode = "FlatFace"
sketch5.AttachmentOffset = App.Placement(V(0, 0, -102 * 25.4), App.Rotation())
sketch5.addGeometry([
    Part.LineSegment(V(-737, -2692, 0), V(-737, -3454, 0)),
    Part.LineSegment(V(-737, -3454, 0), V(-889, -3454, 0)),
    Part.LineSegment(V(-889, -3454, 0), V(-889, -2692, 0)),
    Part.LineSegment(V(-889, -2692, 0), V(-737, -2692, 0)),
], False)
sketch5.addConstraint([
    Sketcher.Constraint("Coincident", 0, 2, 1, 1),
    Sketcher.Constraint("Coincident", 1, 2, 2, 1),
    Sketcher.Constraint("Coincident", 2, 2, 3, 1),
    Sketcher.Constraint("Coincident", 3, 2, 0, 1),
    Sketcher.Constraint("Vertical", 0),
    Sketcher.Constraint("Horizontal", 1),
    Sketcher.Constraint("Vertical", 2),
    Sketcher.Constraint("Horizontal", 3),
    Sketcher.Constraint("DistanceX", 1, 2, 1, 1, Q("6 in")),
    Sketcher.Constraint("DistanceY", 0, 2, 0, 1, Q("30 in")),
    Sketcher.Constraint("DistanceX", 0, 2, -1, 1, Q("29 in")),
    Sketcher.Constraint("DistanceY", 0, 2, -1, 1, Q("136 in")),
])
pad5 = body.newObject("PartDesign::Pad", "Pad004")
pad5.Profile = sketch5
pad5.Length = Q("23 in")

# Sketch on XZ plane
sketch6 = body.newObject("Sketcher::SketchObject", "Sketch005")
sketch6.AttachmentSupport = (doc.getObject("XZ_Plane"), [""])
sketch6.MapMode = "FlatFace"
sketch6.AttachmentOffset = App.Placement(V(0, 0, -102 * 25.4), App.Rotation())
sketch6.addGeometry([
    Part.LineSegment(V(6807, 3048, 0), V(6807, 3200, 0)),
    Part.LineSegment(V(6807, 3200, 0), V(9246, 3200, 0)),
    Part.LineSegment(V(9246, 3200, 0), V(9246, 3048, 0)),
    Part.LineSegment(V(9246, 3048, 0), V(6807, 3048, 0)),
], False)
sketch6.addConstraint([
    Sketcher.Constraint("Coincident", 0, 2, 1, 1),
    Sketcher.Constraint("Coincident", 1, 2, 2, 1),
    Sketcher.Constraint("Coincident", 2, 2, 3, 1),
    Sketcher.Constraint("Coincident", 3, 2, 0, 1),
    Sketcher.Constraint("Vertical", 0),
    Sketcher.Constraint("Horizontal", 1),
    Sketcher.Constraint("Vertical", 2),
    Sketcher.Constraint("Horizontal", 3),
    Sketcher.Constraint("DistanceX", 1, 1, 1, 2, Q("96 in")),
    Sketcher.Constraint("DistanceY", 0, 1, 0, 2, Q("6 in")),
    Sketcher.Constraint("DistanceX", -1, 1, 0, 2, Q("268 in")),
    Sketcher.Constraint("DistanceY", -1, 1, 0, 2, Q("126 in")),
])
pad6 = body.newObject("PartDesign::Pad", "Pad005")
pad6.Profile = sketch6
pad6.Length = Q("7 in")

# Sketch on XZ plane
sketch7 = body.newObject("Sketcher::SketchObject", "Sketch006")
sketch7.AttachmentSupport = (doc.getObject("XZ_Plane"), [""])
sketch7.MapMode = "FlatFace"
sketch7.AttachmentOffset = App.Placement(V(0, 0, -102 * 25.4), App.Rotation())
sketch7.addGeometry([
    Part.LineSegment(V(406, 4826, 0), V(-406, 4826, 0)),
    Part.LineSegment(V(-406, 4826, 0), V(-406, 4978, 0)),
    Part.LineSegment(V(-406, 4978, 0), V(406, 4978, 0)),
    Part.LineSegment(V(406, 4978, 0), V(406, 4826, 0)),
], False)
sketch7.addConstraint([
    Sketcher.Constraint("Coincident", 0, 2, 1, 1),
    Sketcher.Constraint("Coincident", 1, 2, 2, 1),
    Sketcher.Constraint("Coincident", 2, 2, 3, 1),
    Sketcher.Constraint("Coincident", 3, 2, 0, 1),
    Sketcher.Constraint("Horizontal", 0),
    Sketcher.Constraint("Vertical", 1),
    Sketcher.Constraint("Horizontal", 2),
    Sketcher.Constraint("Vertical", 3),
    Sketcher.Constraint("DistanceX", 0, 2, 0, 1, Q("32 in")),
    Sketcher.Constraint("DistanceY", 1, 1, 1, 2, Q("6 in")),
    Sketcher.Constraint("DistanceX", 0, 2, -1, 1, Q("16 in")),
    Sketcher.Constraint("DistanceY", -1, 1, 0, 2, Q("190 in")),
])
pad7 = body.newObject("PartDesign::Pad", "Pad006")
pad7.Profile = sketch7
pad7.Length = Q("21 in")

# Sketch on XY plane
sketch8 = body.newObject("Sketcher::SketchObject", "Sketch007")
sketch8.AttachmentSupport = (doc.getObject("XY_Plane"), [""])
sketch8.MapMode = "FlatFace"
sketch8.AttachmentOffset = App.Placement(V(0, 0, 196 * 25.4), App.Rotation())
sketch8.addGeometry([
    Part.LineSegment(V(-1930, 2108, 0), V(-2743, 2108, 0)),  # 0
    Part.LineSegment(V(-2743, 2108, 0), V(-2743, 635, 0)),  # 1
    Part.LineSegment(V(-2743, 635, 0), V(-1930, 635, 0)),  # 2
    Part.LineSegment(V(-1930, 635, 0), V(-1930, 2108, 0)),  # 3
    Part.LineSegment(V(2667, 2007, 0), V(1930, 2007, 0)),  # 4
    Part.LineSegment(V(1930, 2007, 0), V(1930, 635, 0)),  # 5
    Part.LineSegment(V(1930, 635, 0), V(2667, 635, 0)),  # 6
    Part.LineSegment(V(2667, 635, 0), V(2667, 2007, 0)),  # 7
], False)
sketch8.addConstraint([
    Sketcher.Constraint("Coincident", 0, 2, 1, 1),
    Sketcher.Constraint("Coincident", 1, 2, 2, 1),
    Sketcher.Constraint("Coincident", 2, 2, 3, 1),
    Sketcher.Constraint("Coincident", 3, 2, 0, 1),
    Sketcher.Constraint("Coincident", 4, 2, 5, 1),
    Sketcher.Constraint("Coincident", 5, 2, 6, 1),
    Sketcher.Constraint("Coincident", 6, 2, 7, 1),
    Sketcher.Constraint("Coincident", 7, 2, 4, 1),
    Sketcher.Constraint("Horizontal", 0),
    Sketcher.Constraint("Vertical", 1),
    Sketcher.Constraint("Horizontal", 2),
    Sketcher.Constraint("Vertical", 3),
    Sketcher.Constraint("Horizontal", 4),
    Sketcher.Constraint("Vertical", 5),
    Sketcher.Constraint("Horizontal", 6),
    Sketcher.Constraint("Vertical", 7),
    Sketcher.Constraint("Symmetric", 2, 2, 5, 2, -2),
    Sketcher.Constraint("DistanceX", 0, 2, 0, 1, Q("32 in")),
    Sketcher.Constraint("DistanceX", 4, 2, 4, 1, Q("29 in")),
    Sketcher.Constraint("DistanceY", -1, 1, 1, 2, Q("25 in")),
    Sketcher.Constraint("DistanceY", 1, 2, 1, 1, Q("58 in")),
    Sketcher.Constraint("DistanceY", 5, 2, 5, 1, Q("54 in")),
    Sketcher.Constraint("DistanceX", 0, 2, -1, 1, Q("108 in")),
])
pocket1 = body.newObject("PartDesign::Pocket", "Pocket")
pocket1.Profile = sketch8
pocket1.Length = Q("6 in")

# Sketch on YZ plane
sketch9 = body.newObject("Sketcher::SketchObject", "Sketch008")
sketch9.AttachmentSupport = (doc.getObject("YZ_Plane"), [""])
sketch9.MapMode = "FlatFace"
sketch9.AttachmentOffset = App.Placement(V(0, 0, -190 * 25.4), App.Rotation())
sketch9.addGeometry([
    Part.LineSegment(V(2007, -3124, 0), V(2007, -2210, 0)),
    Part.LineSegment(V(2007, -2210, 0), V(635, -2210, 0)),
    Part.LineSegment(V(635, -2210, 0), V(635, -3124, 0)),
    Part.LineSegment(V(635, -3124, 0), V(2007, -3124, 0)),
], False)
sketch9.addConstraint([
    Sketcher.Constraint("Coincident", 0, 2, 1, 1),
    Sketcher.Constraint("Coincident", 1, 2, 2, 1),
    Sketcher.Constraint("Coincident", 2, 2, 3, 1),
    Sketcher.Constraint("Coincident", 3, 2, 0, 1),
    Sketcher.Constraint("Vertical", 0),
    Sketcher.Constraint("Horizontal", 1),
    Sketcher.Constraint("Vertical", 2),
    Sketcher.Constraint("Horizontal", 3),
    Sketcher.Constraint("DistanceX", 1, 2, 1, 1, Q("54 in")),
    Sketcher.Constraint("DistanceY", 0, 1, 0, 2, Q("36 in")),
    Sketcher.Constraint("DistanceX", -1, 1, 0, 2, Q("79 in")),
    Sketcher.Constraint("DistanceY", 0, 2, -1, 1, Q("87 in")),
])
pocket2 = body.newObject("PartDesign::Pocket", "Pocket001")
pocket2.Profile = sketch9
pocket2.Length = Q("6 in")

doc.recompute()
